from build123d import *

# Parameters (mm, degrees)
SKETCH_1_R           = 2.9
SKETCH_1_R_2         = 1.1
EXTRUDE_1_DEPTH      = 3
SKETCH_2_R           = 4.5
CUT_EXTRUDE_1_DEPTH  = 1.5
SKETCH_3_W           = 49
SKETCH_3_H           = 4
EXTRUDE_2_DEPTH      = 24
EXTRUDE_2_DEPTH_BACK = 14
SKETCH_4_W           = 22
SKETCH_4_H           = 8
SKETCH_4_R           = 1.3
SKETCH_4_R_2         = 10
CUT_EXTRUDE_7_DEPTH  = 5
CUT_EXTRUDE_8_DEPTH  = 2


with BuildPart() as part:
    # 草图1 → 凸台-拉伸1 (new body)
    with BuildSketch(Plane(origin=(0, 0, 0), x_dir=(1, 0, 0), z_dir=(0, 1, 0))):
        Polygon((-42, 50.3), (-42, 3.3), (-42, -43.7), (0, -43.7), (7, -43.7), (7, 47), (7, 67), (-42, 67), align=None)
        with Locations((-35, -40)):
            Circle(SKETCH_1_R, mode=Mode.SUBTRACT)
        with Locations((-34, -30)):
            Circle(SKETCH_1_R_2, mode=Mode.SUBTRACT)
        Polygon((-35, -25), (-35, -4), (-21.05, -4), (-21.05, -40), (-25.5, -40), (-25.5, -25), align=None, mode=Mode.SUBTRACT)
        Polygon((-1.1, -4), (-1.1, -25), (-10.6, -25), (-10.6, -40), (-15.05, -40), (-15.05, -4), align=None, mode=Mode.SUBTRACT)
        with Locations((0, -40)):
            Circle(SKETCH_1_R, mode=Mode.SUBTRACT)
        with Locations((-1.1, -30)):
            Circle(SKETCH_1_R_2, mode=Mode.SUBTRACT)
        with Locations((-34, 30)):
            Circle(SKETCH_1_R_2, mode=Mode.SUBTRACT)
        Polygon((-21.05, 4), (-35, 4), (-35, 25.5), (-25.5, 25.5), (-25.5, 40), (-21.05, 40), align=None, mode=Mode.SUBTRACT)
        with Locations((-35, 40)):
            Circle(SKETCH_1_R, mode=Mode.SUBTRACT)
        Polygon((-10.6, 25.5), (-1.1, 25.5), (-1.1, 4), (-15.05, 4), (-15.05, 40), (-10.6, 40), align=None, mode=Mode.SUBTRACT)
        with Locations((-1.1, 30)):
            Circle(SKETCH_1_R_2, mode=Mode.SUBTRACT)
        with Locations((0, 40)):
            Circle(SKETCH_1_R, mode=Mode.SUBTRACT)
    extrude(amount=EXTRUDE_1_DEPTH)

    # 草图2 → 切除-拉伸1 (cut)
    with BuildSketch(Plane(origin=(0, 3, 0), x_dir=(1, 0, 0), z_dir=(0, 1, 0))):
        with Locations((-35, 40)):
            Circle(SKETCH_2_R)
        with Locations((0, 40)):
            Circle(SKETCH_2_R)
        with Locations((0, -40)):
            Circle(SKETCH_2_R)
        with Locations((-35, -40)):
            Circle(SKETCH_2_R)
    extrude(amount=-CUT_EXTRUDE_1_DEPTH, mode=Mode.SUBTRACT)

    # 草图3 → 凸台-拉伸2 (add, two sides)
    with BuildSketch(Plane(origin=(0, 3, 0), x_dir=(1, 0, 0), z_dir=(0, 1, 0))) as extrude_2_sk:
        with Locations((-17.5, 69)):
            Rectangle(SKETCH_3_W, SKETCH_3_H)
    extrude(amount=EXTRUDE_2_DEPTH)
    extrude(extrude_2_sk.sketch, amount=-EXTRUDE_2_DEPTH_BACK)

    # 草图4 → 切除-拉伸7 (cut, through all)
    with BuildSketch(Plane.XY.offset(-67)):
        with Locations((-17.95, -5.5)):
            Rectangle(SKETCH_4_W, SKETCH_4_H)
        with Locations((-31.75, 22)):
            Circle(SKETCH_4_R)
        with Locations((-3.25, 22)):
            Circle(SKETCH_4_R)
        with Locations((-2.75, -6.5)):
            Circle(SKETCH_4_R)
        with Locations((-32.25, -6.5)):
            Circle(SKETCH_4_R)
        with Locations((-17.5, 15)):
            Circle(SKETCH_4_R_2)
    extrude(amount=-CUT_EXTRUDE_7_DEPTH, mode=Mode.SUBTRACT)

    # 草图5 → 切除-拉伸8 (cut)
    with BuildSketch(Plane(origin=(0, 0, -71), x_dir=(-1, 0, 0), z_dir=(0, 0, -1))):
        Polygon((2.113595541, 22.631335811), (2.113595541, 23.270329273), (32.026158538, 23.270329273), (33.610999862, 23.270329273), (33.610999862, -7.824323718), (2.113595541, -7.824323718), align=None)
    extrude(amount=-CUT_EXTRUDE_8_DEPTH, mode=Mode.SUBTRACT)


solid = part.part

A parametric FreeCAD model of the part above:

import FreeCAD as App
import Part
import Sketcher
from FreeCAD import Vector


def add_polygon(sketch, points):
    """Adds a closed chain of lines whose ends are joined by coincident constraints."""
    first, n = sketch.GeometryCount, len(points)
    for a, b in zip(points, points[1:] + points[:1]):
        sketch.addGeometry(Part.LineSegment(App.Vector(*a, 0), App.Vector(*b, 0)), False)
    for i in range(n):
        sketch.addConstraint(Sketcher.Constraint("Coincident", first + i, 2, first + (i + 1) % n, 1))

doc = App.newDocument("Part")
params = doc.addObject("Spreadsheet::Sheet", "Params")
for row, (alias, value) in enumerate([
    ("sketch1_diameter", "5.8 mm"),
    ("sketch1_diameter2", "2.2 mm"),
    ("sketch1_width", "49 mm"),
    ("sketch1_height", "21 mm"),
    ("sketch1_height2", "36 mm"),
    ("pad1_length", "3 mm"),
    ("sketch2_diameter", "9 mm"),
    ("pocket1_length", "1.5 mm"),
    ("sketch3_width", "49 mm"),
    ("sketch3_height", "4 mm"),
    ("pad2_length", "24 mm"),
    ("pad2_length2", "14 mm"),
    ("sketch4_diameter", "20 mm"),
    ("sketch4_diameter2", "2.6 mm"),
    ("sketch4_width", "22 mm"),
    ("sketch4_height", "8 mm"),
    ("pocket3_length", "2 mm"),
], start=1):
    params.set(f"A{row}", alias)
    params.set(f"B{row}", "=" + value)
    params.setAlias(f"B{row}", alias)

body = doc.addObject("PartDesign::Body", "Body")

sketch1 = body.newObject("Sketcher::SketchObject", "Sketch")
sketch1.AttachmentSupport = (doc.getObject("XZ_Plane"), [""])
sketch1.MapMode = "FlatFace"
add_polygon(sketch1, [(-42, 43.7), (7, 43.7), (7, -67), (-42, -67)])
sketch1.addGeometry(Part.Circle(Vector(-35, 40, 0), Vector(0, 0, 1), 2.9), False)
sketch1.addGeometry(Part.Circle(Vector(-34, 30, 0), Vector(0, 0, 1), 1.1), False)
add_polygon(sketch1, [(-25.5, 25), (-35, 25), (-35, 4), (-21.1, 4), (-21.1, 40), (-25.5, 40)])
add_polygon(sketch1, [(-15.1, 4), (-1.1, 4), (-1.1, 25), (-10.6, 25), (-10.6, 40), (-15.1, 40)])
sketch1.addGeometry(Part.Circle(Vector(0, 40, 0), Vector(0, 0, 1), 2.9), False)
sketch1.addGeometry(Part.Circle(Vector(-1.1, 30, 0), Vector(0, 0, 1), 1.1), False)
sketch1.addGeometry(Part.Circle(Vector(-34, -30, 0), Vector(0, 0, 1), 1.1), False)
add_polygon(sketch1, [(-21.1, -40), (-21.1, -4), (-35, -4), (-35, -25.5), (-25.5, -25.5), (-25.5, -40)])
sketch1.addGeometry(Part.Circle(Vector(-35, -40, 0), Vector(0, 0, 1), 2.9), False)
add_polygon(sketch1, [(-10.6, -40), (-10.6, -25.5), (-1.1, -25.5), (-1.1, -4), (-15.1, -4), (-15.1, -40)])
sketch1.addGeometry(Part.Circle(Vector(-1.1, -30, 0), Vector(0, 0, 1), 1.1), False)
sketch1.addGeometry(Part.Circle(Vector(0, -40, 0), Vector(0, 0, 1), 2.9), False)
sketch1.addConstraint([
    Sketcher.Constraint("Horizontal", 0),
    Sketcher.Constraint("Vertical", 1),
    Sketcher.Constraint("Horizontal", 2),
    Sketcher.Constraint("Vertical", 3),
    Sketcher.Constraint("Horizontal", 6),
    Sketcher.Constraint("Vertical", 7),
    Sketcher.Constraint("Horizontal", 8),
    Sketcher.Constraint("Vertical", 9),
    Sketcher.Constraint("Horizontal", 10),
    Sketcher.Constraint("Vertical", 11),
    Sketcher.Constraint("Horizontal", 12),
    Sketcher.Constraint("Vertical", 13),
    Sketcher.Constraint("Horizontal", 14),
    Sketcher.Constraint("Vertical", 15),
    Sketcher.Constraint("Horizontal", 16),
    Sketcher.Constraint("Vertical", 17),
    Sketcher.Constraint("Vertical", 21),
    Sketcher.Constraint("Horizontal", 22),
    Sketcher.Constraint("Vertical", 23),
    Sketcher.Constraint("Horizontal", 24),
    Sketcher.Constraint("Vertical", 25),
    Sketcher.Constraint("Horizontal", 26),
    Sketcher.Constraint("Vertical", 28),
    Sketcher.Constraint("Horizontal", 29),
    Sketcher.Constraint("Vertical", 30),
    Sketcher.Constraint("Horizontal", 31),
    Sketcher.Constraint("Vertical", 32),
    Sketcher.Constraint("Horizontal", 33),
    Sketcher.Constraint("Equal", 4, 18),
    Sketcher.Constraint("Equal", 5, 19),
    Sketcher.Constraint("Equal", 19, 20),
    Sketcher.Constraint("Equal", 18, 27),
    Sketcher.Constraint("Equal", 20, 34),
    Sketcher.Constraint("Equal", 27, 35),
    Sketcher.Constraint("Symmetric", 18, 3, 35, 3, -1, 1),
    Sketcher.Constraint("Symmetric", 5, 3, 20, 3, -1),
    Sketcher.Constraint("Symmetric", 4, 3, 27, 3, -1),
    Sketcher.Constraint("Symmetric", 19, 3, 34, 3, -1),
    Sketcher.Constraint("Symmetric", 8, 2, 21, 2, -1),
    Sketcher.Constraint("Symmetric", 10, 2, 25, 2, -1),
    Sketcher.Constraint("Symmetric", 12, 2, 30, 2, -1),
    Sketcher.Constraint("Symmetric", 16, 2, 32, 2, -1),
    Sketcher.Constraint("PointOnObject", 18, 3, -2),
    Sketcher.Constraint("Horizontal", 4, 3, 18, 3),
    Sketcher.Constraint("Horizontal", 5, 3, 19, 3),
    Sketcher.Constraint("Horizontal", 18, 3, 9, 2),
    Sketcher.Constraint("Horizontal", 8, 2, 12, 2),
    Sketcher.Constraint("Horizontal", 11, 2, 13, 2),
    Sketcher.Constraint("Horizontal", 10, 2, 15, 2),
    Sketcher.Constraint("Horizontal", 24, 2, 28, 2),
    Sketcher.Constraint("Vertical", 27, 3, 6, 2),
    Sketcher.Constraint("Vertical", 34, 3, 12, 2),
    Sketcher.Constraint("Vertical", 7, 2, 22, 2),
    Sketcher.Constraint("Vertical", 15, 2, 28, 2),
    Sketcher.Constraint("Equal", 8, 12),
    Sketcher.Constraint("Equal", 6, 14),
    Sketcher.Constraint("Diameter", 4, 5.8),
    Sketcher.Constraint("Diameter", 5, 2.2),
    Sketcher.Constraint("DistanceX", 0, 1, 0, 2, 49.0),
    Sketcher.Constraint("DistanceY", 7, 2, 7, 1, 21.0),
    Sketcher.Constraint("DistanceY", 9, 1, 9, 2, 36.0),
    Sketcher.Constraint("DistanceX", 6, 2, 6, 1, 9.5),
    Sketcher.Constraint("DistanceY", 1, 2, 1, 1, 110.7),
    Sketcher.Constraint("DistanceY", 23, 2, 23, 1, 21.5),
    Sketcher.Constraint("DistanceX", 4, 3, -1, 1, 35.0),
    Sketcher.Constraint("DistanceY", -1, 1, 4, 3, 40.0),
    Sketcher.Constraint("DistanceX", 5, 3, -1, 1, 34.0),
    Sketcher.Constraint("DistanceY", -1, 1, 5, 3, 30.0),
    Sketcher.Constraint("DistanceX", -1, 1, 0, 2, 7.0),
    Sketcher.Constraint("DistanceY", 1, 2, -1, 1, 67.0),
    Sketcher.Constraint("DistanceX", 9, 2, 16, 2, 6.0),
    Sketcher.Constraint("DistanceX", 8, 1, 8, 2, 13.95),
])
sketch1.setExpression("Constraints[84]", "Params.sketch1_diameter")
sketch1.setExpression("Constraints[85]", "Params.sketch1_diameter2")
sketch1.setExpression("Constraints[86]", "Params.sketch1_width")
sketch1.setExpression("Constraints[87]", "Params.sketch1_height")
sketch1.setExpression("Constraints[88]", "Params.sketch1_height2")
pad1 = body.newObject("PartDesign::Pad", "Pad")
pad1.Profile = sketch1
pad1.setExpression("Length", "Params.pad1_length")
pad1.Reversed = True

sketch2 = body.newObject("Sketcher::SketchObject", "Sketch001")
sketch2.AttachmentSupport = (doc.getObject("XZ_Plane"), [""])
sketch2.MapMode = "FlatFace"
sketch2.AttachmentOffset = App.Placement(Vector(0, 0, -3), App.Rotation())
sketch2.addGeometry([
    Part.Circle(Vector(-35, -40, 0), Vector(0, 0, 1), 4.5),
    Part.Circle(Vector(0, -40, 0), Vector(0, 0, 1), 4.5),
    Part.Circle(Vector(0, 40, 0), Vector(0, 0, 1), 4.5),
    Part.Circle(Vector(-35, 40, 0), Vector(0, 0, 1), 4.5),
], False)
sketch2.addConstraint([
    Sketcher.Constraint("Equal", 0, 1),
    Sketcher.Constraint("Equal", 1, 2),
    Sketcher.Constraint("Equal", 2, 3),
    Sketcher.Constraint("Symmetric", 1, 3, 2, 3, -1, 1),
    Sketcher.Constraint("Symmetric", 0, 3, 3, 3, -1),
    Sketcher.Constraint("PointOnObject", 1, 3, -2),
    Sketcher.Constraint("Horizontal", 0, 3, 1, 3),
    Sketcher.Constraint("Diameter", 0, 9.0),
    Sketcher.Constraint("DistanceX", 0, 3, -1, 1, 35.0),
    Sketcher.Constraint("DistanceY", 0, 3, -1, 1, 40.0),
])
sketch2.setExpression("Constraints[7]", "Params.sketch2_diameter")
pocket1 = body.newObject("PartDesign::Pocket", "Pocket")
pocket1.Profile = sketch2
pocket1.setExpression("Length", "Params.pocket1_length")
pocket1.Reversed = True

sketch3 = body.newObject("Sketcher::SketchObject", "Sketch002")
sketch3.AttachmentSupport = (doc.getObject("XZ_Plane"), [""])
sketch3.MapMode = "FlatFace"
sketch3.AttachmentOffset = App.Placement(Vector(0, 0, -3), App.Rotation())
add_polygon(sketch3, [(-42, -71), (-42, -67), (7, -67), (7, -71)])
sketch3.addConstraint([
    Sketcher.Constraint("Vertical", 0),
    Sketcher.Constraint("Horizontal", 1),
    Sketcher.Constraint("Vertical", 2),
    Sketcher.Constraint("Horizontal", 3),
    Sketcher.Constraint("DistanceX", 1, 1, 1, 2, 49.0),
    Sketcher.Constraint("DistanceY", 0, 1, 0, 2, 4.0),
    Sketcher.Constraint("DistanceX", 0, 2, -1, 1, 42.0),
    Sketcher.Constraint("DistanceY", 0, 2, -1, 1, 67.0),
])
sketch3.setExpression("Constraints[8]", "Params.sketch3_width")
sketch3.setExpression("Constraints[9]", "Params.sketch3_height")
pad2 = body.newObject("PartDesign::Pad", "Pad001")
pad2.Profile = sketch3
pad2.Type = "TwoLengths"
pad2.setExpression("Length", "Params.pad2_length")
pad2.setExpression("Length2", "Params.pad2_length2")
pad2.Reversed = True

sketch4 = body.newObject("Sketcher::SketchObject", "Sketch003")
sketch4.AttachmentSupport = (doc.getObject("XY_Plane"), [""])
sketch4.MapMode = "FlatFace"
sketch4.AttachmentOffset = App.Placement(Vector(0, 0, -67), App.Rotation())
add_polygon(sketch4, [(-28.9, -1.5), (-28.9, -9.5), (-7, -9.5), (-7, -1.5)])
sketch4.addGeometry(Part.Circle(Vector(-31.8, 22, 0), Vector(0, 0, 1), 1.3), False)
sketch4.addGeometry(Part.Circle(Vector(-3.2, 22, 0), Vector(0, 0, 1), 1.3), False)
sketch4.addGeometry(Part.Circle(Vector(-2.8, -6.5, 0), Vector(0, 0, 1), 1.3), False)
sketch4.addGeometry(Part.Circle(Vector(-32.2, -6.5, 0), Vector(0, 0, 1), 1.3), False)
sketch4.addGeometry(Part.Circle(Vector(-17.5, 15, 0), Vector(0, 0, 1), 10), False)
sketch4.addConstraint([
    Sketcher.Constraint("Vertical", 0),
    Sketcher.Constraint("Horizontal", 1),
    Sketcher.Constraint("Vertical", 2),
    Sketcher.Constraint("Horizontal", 3),
    Sketcher.Constraint("Equal", 4, 5),
    Sketcher.Constraint("Equal", 5, 6),
    Sketcher.Constraint("Equal", 6, 7),
    Sketcher.Constraint("Horizontal", 4, 3, 5, 3),
    Sketcher.Constraint("Horizontal", 6, 3, 7, 3),
    Sketcher.Constraint("Diameter", 8, 20.0),
    Sketcher.Constraint("Diameter", 4, 2.6),
    Sketcher.Constraint("DistanceX", 1, 1, 1, 2, 22.0),
    Sketcher.Constraint("DistanceY", 0, 2, 0, 1, 8.0),
    Sketcher.Constraint("DistanceY", -1, 1, 4, 3, 22.0),
    Sketcher.Constraint("DistanceY", -1, 1, 8, 3, 15.0),
    Sketcher.Constraint("DistanceX", 4, 3, 6, 3, 29.0),
    Sketcher.Constraint("DistanceX", 7, 3, 5, 3, 29.0),
    Sketcher.Constraint("DistanceY", 0, 2, 7, 3, 3.0),
    Sketcher.Constraint("DistanceY", 6, 3, -1, 1, 6.5),
    Sketcher.Constraint("DistanceX", 8, 3, -1, 1, 17.5),
    Sketcher.Constraint("DistanceX", 4, 3, 5, 3, 28.5),
    Sketcher.Constraint("DistanceX", 7, 3, 0, 2, 3.3),
    Sketcher.Constraint("DistanceX", 4, 3, -1, 1, 31.75),
])
sketch4.setExpression("Constraints[13]", "Params.sketch4_diameter")
sketch4.setExpression("Constraints[14]", "Params.sketch4_diameter2")
sketch4.setExpression("Constraints[15]", "Params.sketch4_width")
sketch4.setExpression("Constraints[16]", "Params.sketch4_height")
pocket2 = body.newObject("PartDesign::Pocket", "Pocket001")
pocket2.Profile = sketch4
pocket2.Type = "ThroughAll"

sketch5 = body.newObject("Sketcher::SketchObject", "Sketch004")
sketch5.AttachmentSupport = (doc.getObject("XY_Plane"), [""])
sketch5.MapMode = "FlatFace"
sketch5.AttachmentOffset = App.Placement(Vector(0, 0, -71), App.Rotation())
add_polygon(sketch5, [(-2, 23), (-2, -8), (-34, -8), (-34, 23)])
sketch5.addConstraint([
    Sketcher.Constraint("Vertical", 0),
    Sketcher.Constraint("Horizontal", 1),
    Sketcher.Constraint("Vertical", 2),
    Sketcher.Constraint("Horizontal", 3),
    Sketcher.Constraint("DistanceX", 1, 2, -1, 1, 33.611),
    Sketcher.Constraint("DistanceX", 1, 2, 1, 1, 31.497404),
    Sketcher.Constraint("DistanceY", 0, 2, 0, 1, 31.094653),
    Sketcher.Constraint("DistanceY", -1, 1, 2, 2, 23.270329),
])
pocket3 = body.newObject("PartDesign::Pocket", "Pocket002")
pocket3.Profile = sketch5
pocket3.setExpression("Length", "Params.pocket3_length")
pocket3.Reversed = True

doc.recompute()
